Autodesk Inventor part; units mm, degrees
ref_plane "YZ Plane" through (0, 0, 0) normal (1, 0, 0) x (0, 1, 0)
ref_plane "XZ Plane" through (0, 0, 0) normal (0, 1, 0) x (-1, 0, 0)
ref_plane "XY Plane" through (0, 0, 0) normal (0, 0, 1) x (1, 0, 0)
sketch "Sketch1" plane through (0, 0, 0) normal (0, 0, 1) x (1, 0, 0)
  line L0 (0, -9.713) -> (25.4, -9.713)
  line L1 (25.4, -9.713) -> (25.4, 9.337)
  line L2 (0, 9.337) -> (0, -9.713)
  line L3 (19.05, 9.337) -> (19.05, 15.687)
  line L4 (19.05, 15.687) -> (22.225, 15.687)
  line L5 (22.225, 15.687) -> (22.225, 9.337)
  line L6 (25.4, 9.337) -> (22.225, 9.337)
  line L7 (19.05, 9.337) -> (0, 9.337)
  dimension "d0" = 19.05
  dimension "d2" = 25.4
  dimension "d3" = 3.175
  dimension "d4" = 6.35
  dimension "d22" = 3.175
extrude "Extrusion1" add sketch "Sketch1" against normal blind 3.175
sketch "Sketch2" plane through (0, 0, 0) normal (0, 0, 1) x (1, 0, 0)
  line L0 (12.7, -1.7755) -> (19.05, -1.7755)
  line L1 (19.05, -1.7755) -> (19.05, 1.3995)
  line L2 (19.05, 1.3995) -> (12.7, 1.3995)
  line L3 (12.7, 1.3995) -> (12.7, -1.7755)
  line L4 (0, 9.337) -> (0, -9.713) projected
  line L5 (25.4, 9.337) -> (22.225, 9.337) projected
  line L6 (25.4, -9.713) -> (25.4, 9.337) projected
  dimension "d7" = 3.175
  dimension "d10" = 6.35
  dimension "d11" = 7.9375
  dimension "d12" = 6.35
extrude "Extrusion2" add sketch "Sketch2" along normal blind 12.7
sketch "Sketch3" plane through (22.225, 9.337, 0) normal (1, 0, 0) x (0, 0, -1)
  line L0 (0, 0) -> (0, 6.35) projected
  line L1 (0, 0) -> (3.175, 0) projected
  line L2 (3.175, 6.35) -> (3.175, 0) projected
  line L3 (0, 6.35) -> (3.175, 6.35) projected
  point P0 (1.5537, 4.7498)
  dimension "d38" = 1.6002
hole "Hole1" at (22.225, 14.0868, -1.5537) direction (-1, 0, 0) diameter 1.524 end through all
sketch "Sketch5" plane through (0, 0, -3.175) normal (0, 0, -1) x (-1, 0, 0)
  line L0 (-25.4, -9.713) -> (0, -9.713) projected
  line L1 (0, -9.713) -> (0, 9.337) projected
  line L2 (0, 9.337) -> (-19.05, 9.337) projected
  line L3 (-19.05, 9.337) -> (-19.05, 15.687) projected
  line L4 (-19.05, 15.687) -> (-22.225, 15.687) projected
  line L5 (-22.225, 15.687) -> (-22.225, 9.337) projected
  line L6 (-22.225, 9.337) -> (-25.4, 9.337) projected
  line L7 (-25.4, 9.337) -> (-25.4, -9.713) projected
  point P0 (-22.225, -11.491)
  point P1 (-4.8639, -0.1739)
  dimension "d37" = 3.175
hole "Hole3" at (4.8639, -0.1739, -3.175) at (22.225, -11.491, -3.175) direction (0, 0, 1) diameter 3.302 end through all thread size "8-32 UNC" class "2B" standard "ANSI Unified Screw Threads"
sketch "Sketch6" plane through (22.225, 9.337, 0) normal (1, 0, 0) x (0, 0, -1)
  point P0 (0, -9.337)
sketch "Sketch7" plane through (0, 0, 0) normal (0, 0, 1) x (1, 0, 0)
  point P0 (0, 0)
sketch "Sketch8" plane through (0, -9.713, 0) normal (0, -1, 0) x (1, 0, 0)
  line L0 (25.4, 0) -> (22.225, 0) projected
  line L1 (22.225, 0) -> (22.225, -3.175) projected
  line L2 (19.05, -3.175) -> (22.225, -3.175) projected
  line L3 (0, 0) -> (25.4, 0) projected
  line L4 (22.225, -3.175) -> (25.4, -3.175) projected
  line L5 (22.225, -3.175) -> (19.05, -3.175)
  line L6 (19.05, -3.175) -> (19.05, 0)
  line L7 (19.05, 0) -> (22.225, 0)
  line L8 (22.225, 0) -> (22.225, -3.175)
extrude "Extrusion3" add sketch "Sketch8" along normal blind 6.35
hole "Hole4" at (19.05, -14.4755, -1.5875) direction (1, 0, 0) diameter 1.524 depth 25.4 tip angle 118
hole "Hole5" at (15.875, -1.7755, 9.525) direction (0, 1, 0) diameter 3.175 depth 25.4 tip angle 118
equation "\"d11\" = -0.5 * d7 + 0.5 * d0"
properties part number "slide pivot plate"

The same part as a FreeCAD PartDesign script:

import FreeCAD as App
import Part
import Sketcher
from FreeCAD import Vector
Q = App.Units.Quantity


def add_polygon(sketch, points):
    """Adds a closed chain of lines whose ends are joined by coincident constraints."""
    first, n = sketch.GeometryCount, len(points)
    for a, b in zip(points, points[1:] + points[:1]):
        sketch.addGeometry(Part.LineSegment(App.Vector(*a, 0), App.Vector(*b, 0)), False)
    for i in range(n):
        sketch.addConstraint(Sketcher.Constraint("Coincident", first + i, 2, first + (i + 1) % n, 1))

doc = App.newDocument("Part")
body = doc.addObject("PartDesign::Body", "Body")

sketch1 = body.newObject("Sketcher::SketchObject", "Sketch")
sketch1.AttachmentSupport = (doc.getObject("XY_Plane"), [""])
sketch1.MapMode = "FlatFace"
add_polygon(sketch1, [(0, 9.3), (0, -9.7), (25.4, -9.7), (25.4, 9.3), (22.2, 9.3), (22.2, 15.7), (19.1, 15.7), (19.1, 9.3)])
sketch1.addConstraint([
    Sketcher.Constraint("Vertical", 0),
    Sketcher.Constraint("Horizontal", 1),
    Sketcher.Constraint("Vertical", 2),
    Sketcher.Constraint("Horizontal", 3),
    Sketcher.Constraint("Vertical", 4),
    Sketcher.Constraint("Horizontal", 5),
    Sketcher.Constraint("Vertical", 6),
    Sketcher.Constraint("Horizontal", 7),
    Sketcher.Constraint("PointOnObject", 0, 2, -2),
    Sketcher.Constraint("Horizontal", 3, 2, 6, 2),
    Sketcher.Constraint("Equal", 3, 5),
    Sketcher.Constraint("Equal", 7, 0),
    Sketcher.Constraint("DistanceX", 1, 1, 1, 2, Q("1 in")),
    Sketcher.Constraint("DistanceY", 1, 2, 4, 2, Q("1 in")),
    Sketcher.Constraint("DistanceX", 7, 2, 7, 1, Q("0.75 in")),
    Sketcher.Constraint("DistanceY", 0, 2, -1, 1, Q("0.3824 in")),
])
pad1 = body.newObject("PartDesign::Pad", "Pad")
pad1.Profile = sketch1
pad1.Length = Q("0.125 in")
pad1.Reversed = True

sketch2 = body.newObject("Sketcher::SketchObject", "Sketch001")
sketch2.AttachmentSupport = (doc.getObject("XY_Plane"), [""])
sketch2.MapMode = "FlatFace"
add_polygon(sketch2, [(12.7, 1.4), (12.7, -1.8), (19.1, -1.8), (19.1, 1.4)])
sketch2.addConstraint([
    Sketcher.Constraint("Vertical", 0),
    Sketcher.Constraint("Horizontal", 1),
    Sketcher.Constraint("Vertical", 2),
    Sketcher.Constraint("Horizontal", 3),
    Sketcher.Constraint("DistanceX", 1, 1, 1, 2, Q("0.25 in")),
    Sketcher.Constraint("DistanceY", 0, 2, 0, 1, Q("0.125 in")),
    Sketcher.Constraint("DistanceX", -1, 1, 0, 2, Q("0.5 in")),
    Sketcher.Constraint("DistanceY", 0, 2, -1, 1, Q("0.0699 in")),
])
pad2 = body.newObject("PartDesign::Pad", "Pad001")
pad2.Profile = sketch2
pad2.Length = Q("0.5 in")

sketch3 = body.newObject("Sketcher::SketchObject", "Sketch002")
sketch3.AttachmentSupport = (doc.getObject("YZ_Plane"), [""])
sketch3.MapMode = "FlatFace"
sketch3.AttachmentOffset = App.Placement(Vector(0, 0, 0.875 * 25.4), App.Rotation())
sketch3.addGeometry(Part.Circle(Vector(14.1, -1.6, 0), Vector(0, 0, 1), 0.8), False)
sketch3.addConstraint([
    Sketcher.Constraint("Diameter", 0, Q("0.06 in")),
    Sketcher.Constraint("DistanceX", -1, 1, 0, 3, Q("0.5546 in")),
    Sketcher.Constraint("DistanceY", 0, 3, -1, 1, Q("1.5537 mm")),
])
doc.recompute()
hole = body.newObject("PartDesign::Hole", "Hole")
hole.Profile = sketch3
hole.ThreadType = "None"
hole.Diameter = Q("0.06 in")
hole.DepthType = "ThroughAll"

sketch4 = body.newObject("Sketcher::SketchObject", "Sketch003")
sketch4.AttachmentSupport = (doc.getObject("XY_Plane"), [""])
sketch4.MapMode = "FlatFace"
sketch4.AttachmentOffset = App.Placement(Vector(0, 0, -0.125 * 25.4), App.Rotation())
sketch4.addGeometry([
    Part.Circle(Vector(4.9, -0.2, 0), Vector(0, 0, 1), 1.7),
    Part.Circle(Vector(22.2, -11.5, 0), Vector(0, 0, 1), 1.7),
], False)
sketch4.addConstraint([
    Sketcher.Constraint("Equal", 0, 1),
    Sketcher.Constraint("Diameter", 0, Q("0.13 in")),
    Sketcher.Constraint("DistanceX", -1, 1, 1, 3, Q("0.875 in")),
    Sketcher.Constraint("DistanceX", -1, 1, 0, 3, Q("0.1915 in")),
    Sketcher.Constraint("DistanceY", 1, 3, -1, 1, Q("0.4524 in")),
    Sketcher.Constraint("DistanceY", 0, 3, -1, 1, Q("0.174 mm")),
])
doc.recompute()
hole2 = body.newObject("PartDesign::Hole", "Hole001")
hole2.Profile = sketch4
hole2.ThreadType = "None"
hole2.Diameter = Q("0.13 in")
hole2.DepthType = "ThroughAll"
hole2.Reversed = True

sketch5 = body.newObject("Sketcher::SketchObject", "Sketch004")
sketch5.AttachmentSupport = (doc.getObject("XZ_Plane"), [""])
sketch5.MapMode = "FlatFace"
sketch5.AttachmentOffset = App.Placement(Vector(0, 0, 0.3824016 * 25.4), App.Rotation())
add_polygon(sketch5, [(22.2, -3.2), (22.2, 0), (19.1, 0), (19.1, -3.2)])
sketch5.addConstraint([
    Sketcher.Constraint("Vertical", 0),
    Sketcher.Constraint("Horizontal", 1),
    Sketcher.Constraint("Vertical", 2),
    Sketcher.Constraint("Horizontal", 3),
    Sketcher.Constraint("PointOnObject", 0, 2, -1),
    Sketcher.Constraint("Equal", 3, 0),
    Sketcher.Constraint("DistanceX", 1, 2, 1, 1, Q("0.125 in")),
    Sketcher.Constraint("DistanceX", -1, 1, 1, 2, Q("0.75 in")),
])
pad3 = body.newObject("PartDesign::Pad", "Pad002")
pad3.Profile = sketch5
pad3.Length = Q("0.25 in")

sketch6 = body.newObject("Sketcher::SketchObject", "Sketch005")
sketch6.AttachmentSupport = (doc.getObject("YZ_Plane"), [""])
sketch6.MapMode = "FlatFace"
sketch6.AttachmentOffset = App.Placement(Vector(0, 0, 0.75 * 25.4), App.Rotation())
sketch6.addGeometry(Part.Circle(Vector(-14.5, -1.6, 0), Vector(0, 0, 1), 0.8), False)
sketch6.addConstraint([
    Sketcher.Constraint("Diameter", 0, Q("0.06 in")),
    Sketcher.Constraint("DistanceY", 0, 3, -1, 1, Q("0.0625 in")),
    Sketcher.Constraint("DistanceX", 0, 3, -1, 1, Q("0.5699 in")),
])
doc.recompute()
hole3 = body.newObject("PartDesign::Hole", "Hole002")
hole3.Profile = sketch6
hole3.ThreadType = "None"
hole3.Diameter = Q("0.06 in")
hole3.DepthType = "Dimension"
hole3.Depth = Q("1 in")
hole3.DrillPoint = "Angled"
hole3.DrillPointAngle = 118
hole3.Reversed = True

sketch7 = body.newObject("Sketcher::SketchObject", "Sketch006")
sketch7.AttachmentSupport = (doc.getObject("XZ_Plane"), [""])
sketch7.MapMode = "FlatFace"
sketch7.AttachmentOffset = App.Placement(Vector(0, 0, 0.0699016 * 25.4), App.Rotation())
sketch7.addGeometry(Part.Circle(Vector(15.9, 9.5, 0), Vector(0, 0, 1), 1.6), False)
sketch7.addConstraint([
    Sketcher.Constraint("Diameter", 0, Q("0.125 in")),
    Sketcher.Constraint("DistanceX", -1, 1, 0, 3, Q("0.625 in")),
    Sketcher.Constraint("DistanceY", -1, 1, 0, 3, Q("0.375 in")),
])
doc.recompute()
hole4 = body.newObject("PartDesign::Hole", "Hole003")
hole4.Profile = sketch7
hole4.ThreadType = "None"
hole4.Diameter = Q("0.125 in")
hole4.DepthType = "Dimension"
hole4.Depth = Q("1 in")
hole4.DrillPoint = "Angled"
hole4.DrillPointAngle = 118

doc.recompute()
